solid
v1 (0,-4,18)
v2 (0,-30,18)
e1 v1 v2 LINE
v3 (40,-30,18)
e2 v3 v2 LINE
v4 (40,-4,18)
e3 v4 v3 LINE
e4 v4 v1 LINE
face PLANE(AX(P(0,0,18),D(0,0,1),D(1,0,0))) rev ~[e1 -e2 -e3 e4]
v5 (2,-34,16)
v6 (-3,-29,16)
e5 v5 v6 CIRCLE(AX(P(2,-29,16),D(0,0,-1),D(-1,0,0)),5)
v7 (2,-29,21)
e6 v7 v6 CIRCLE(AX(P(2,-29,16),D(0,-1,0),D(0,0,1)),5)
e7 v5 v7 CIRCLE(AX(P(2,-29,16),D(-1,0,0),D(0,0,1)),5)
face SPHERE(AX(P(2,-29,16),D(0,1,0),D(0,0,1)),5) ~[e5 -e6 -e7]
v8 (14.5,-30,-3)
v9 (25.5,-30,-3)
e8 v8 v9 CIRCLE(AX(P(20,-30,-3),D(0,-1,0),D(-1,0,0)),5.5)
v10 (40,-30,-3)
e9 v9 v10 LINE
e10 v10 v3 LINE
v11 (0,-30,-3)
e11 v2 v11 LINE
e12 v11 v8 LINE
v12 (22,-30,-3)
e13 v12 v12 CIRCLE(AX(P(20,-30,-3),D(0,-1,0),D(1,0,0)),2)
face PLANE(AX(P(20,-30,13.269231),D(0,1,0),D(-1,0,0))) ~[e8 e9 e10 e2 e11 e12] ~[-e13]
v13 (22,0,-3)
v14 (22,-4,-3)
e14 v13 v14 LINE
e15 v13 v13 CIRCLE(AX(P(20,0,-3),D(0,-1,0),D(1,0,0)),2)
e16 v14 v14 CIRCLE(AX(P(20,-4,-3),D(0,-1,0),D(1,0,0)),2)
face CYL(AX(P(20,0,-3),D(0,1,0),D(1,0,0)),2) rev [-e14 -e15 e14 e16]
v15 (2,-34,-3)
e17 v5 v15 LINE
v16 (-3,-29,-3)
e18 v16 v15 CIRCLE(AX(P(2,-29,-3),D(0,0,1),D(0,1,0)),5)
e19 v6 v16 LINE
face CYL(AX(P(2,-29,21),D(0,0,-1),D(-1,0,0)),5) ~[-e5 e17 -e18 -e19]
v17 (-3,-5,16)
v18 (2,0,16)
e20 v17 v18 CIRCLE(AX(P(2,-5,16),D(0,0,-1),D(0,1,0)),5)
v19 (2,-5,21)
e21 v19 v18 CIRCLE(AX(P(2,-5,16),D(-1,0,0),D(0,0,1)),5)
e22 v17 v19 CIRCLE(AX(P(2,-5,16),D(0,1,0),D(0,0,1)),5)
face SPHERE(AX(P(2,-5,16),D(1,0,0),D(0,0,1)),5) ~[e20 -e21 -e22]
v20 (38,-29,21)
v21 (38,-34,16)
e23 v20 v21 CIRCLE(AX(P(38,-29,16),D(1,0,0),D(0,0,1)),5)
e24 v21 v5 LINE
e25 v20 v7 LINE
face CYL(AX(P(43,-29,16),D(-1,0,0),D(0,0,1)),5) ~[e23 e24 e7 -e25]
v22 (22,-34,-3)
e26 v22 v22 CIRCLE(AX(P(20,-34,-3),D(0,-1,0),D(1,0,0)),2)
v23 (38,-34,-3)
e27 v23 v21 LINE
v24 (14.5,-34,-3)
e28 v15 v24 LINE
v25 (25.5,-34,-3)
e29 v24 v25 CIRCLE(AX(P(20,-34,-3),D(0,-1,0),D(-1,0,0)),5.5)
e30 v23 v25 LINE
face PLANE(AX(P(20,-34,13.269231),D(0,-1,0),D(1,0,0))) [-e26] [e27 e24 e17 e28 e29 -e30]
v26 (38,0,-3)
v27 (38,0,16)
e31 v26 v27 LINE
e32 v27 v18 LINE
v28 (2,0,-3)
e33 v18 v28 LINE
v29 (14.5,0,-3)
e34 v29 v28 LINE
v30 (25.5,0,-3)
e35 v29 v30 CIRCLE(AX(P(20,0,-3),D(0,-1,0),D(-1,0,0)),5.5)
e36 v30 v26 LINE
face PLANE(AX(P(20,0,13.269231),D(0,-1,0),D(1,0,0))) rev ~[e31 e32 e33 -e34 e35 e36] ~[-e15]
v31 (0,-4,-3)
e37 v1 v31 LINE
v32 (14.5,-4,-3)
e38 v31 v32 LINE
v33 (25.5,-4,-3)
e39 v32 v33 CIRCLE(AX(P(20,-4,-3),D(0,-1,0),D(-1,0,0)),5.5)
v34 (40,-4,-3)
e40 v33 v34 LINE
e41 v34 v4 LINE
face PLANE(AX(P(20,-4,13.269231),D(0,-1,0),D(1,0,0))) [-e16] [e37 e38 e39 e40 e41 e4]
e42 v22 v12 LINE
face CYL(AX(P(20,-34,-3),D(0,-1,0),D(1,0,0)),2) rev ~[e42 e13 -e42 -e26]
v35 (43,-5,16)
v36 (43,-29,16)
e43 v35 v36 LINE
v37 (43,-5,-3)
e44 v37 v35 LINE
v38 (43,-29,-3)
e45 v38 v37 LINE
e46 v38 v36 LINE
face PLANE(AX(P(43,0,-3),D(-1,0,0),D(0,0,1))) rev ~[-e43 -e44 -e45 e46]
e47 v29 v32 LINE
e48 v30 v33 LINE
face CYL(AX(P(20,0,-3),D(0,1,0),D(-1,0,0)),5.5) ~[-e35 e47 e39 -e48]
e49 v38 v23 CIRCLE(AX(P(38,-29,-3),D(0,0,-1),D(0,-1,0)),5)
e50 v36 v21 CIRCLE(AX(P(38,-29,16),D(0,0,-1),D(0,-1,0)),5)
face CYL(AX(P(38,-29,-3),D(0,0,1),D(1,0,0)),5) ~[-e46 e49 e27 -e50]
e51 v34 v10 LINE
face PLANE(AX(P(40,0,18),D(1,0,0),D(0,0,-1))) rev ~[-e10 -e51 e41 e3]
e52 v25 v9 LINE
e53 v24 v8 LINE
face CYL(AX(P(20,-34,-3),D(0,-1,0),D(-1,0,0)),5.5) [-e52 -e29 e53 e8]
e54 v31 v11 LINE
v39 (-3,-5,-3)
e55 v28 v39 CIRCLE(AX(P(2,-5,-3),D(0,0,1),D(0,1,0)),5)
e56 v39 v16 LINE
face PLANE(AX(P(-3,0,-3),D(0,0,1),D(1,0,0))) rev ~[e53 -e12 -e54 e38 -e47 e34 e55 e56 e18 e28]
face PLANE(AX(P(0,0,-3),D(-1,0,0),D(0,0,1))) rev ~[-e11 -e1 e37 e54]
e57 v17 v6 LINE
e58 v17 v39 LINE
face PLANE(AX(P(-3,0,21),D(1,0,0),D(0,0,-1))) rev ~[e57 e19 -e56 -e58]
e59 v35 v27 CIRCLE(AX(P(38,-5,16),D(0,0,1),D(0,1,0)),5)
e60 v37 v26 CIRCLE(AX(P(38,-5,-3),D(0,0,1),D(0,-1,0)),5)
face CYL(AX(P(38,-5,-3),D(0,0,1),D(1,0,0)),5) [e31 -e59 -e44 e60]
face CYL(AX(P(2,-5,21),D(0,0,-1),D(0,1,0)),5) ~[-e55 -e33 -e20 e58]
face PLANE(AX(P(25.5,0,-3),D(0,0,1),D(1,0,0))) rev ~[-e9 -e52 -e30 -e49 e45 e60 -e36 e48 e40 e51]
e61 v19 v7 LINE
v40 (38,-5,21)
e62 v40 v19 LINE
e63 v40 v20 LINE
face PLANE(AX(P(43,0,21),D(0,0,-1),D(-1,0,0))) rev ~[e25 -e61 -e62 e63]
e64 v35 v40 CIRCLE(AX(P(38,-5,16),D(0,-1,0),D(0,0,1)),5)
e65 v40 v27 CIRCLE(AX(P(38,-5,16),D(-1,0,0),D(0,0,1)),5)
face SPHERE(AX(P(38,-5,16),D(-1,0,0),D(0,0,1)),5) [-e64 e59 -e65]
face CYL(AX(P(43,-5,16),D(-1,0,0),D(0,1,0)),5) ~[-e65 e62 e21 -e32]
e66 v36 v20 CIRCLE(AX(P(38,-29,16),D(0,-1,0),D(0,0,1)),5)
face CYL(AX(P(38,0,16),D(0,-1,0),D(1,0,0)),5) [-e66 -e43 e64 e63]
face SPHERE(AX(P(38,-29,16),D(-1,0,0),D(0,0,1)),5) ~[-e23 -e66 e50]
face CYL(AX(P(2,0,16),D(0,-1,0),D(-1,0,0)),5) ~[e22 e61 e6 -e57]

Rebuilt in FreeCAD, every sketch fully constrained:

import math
import FreeCAD as App
import Part
import Sketcher
from FreeCAD import Vector
Q = App.Units.Quantity


def edges_at(feature, points):
    """Names of the edges that pass closest to the given points."""
    edges = feature.Shape.Edges
    near = lambda p: min(range(len(edges)), key=lambda i: edges[i].distToShape(Part.Vertex(*p))[0])
    return sorted({f"Edge{near(p) + 1}" for p in points})

doc = App.newDocument("Part")
params = doc.addObject("Spreadsheet::Sheet", "Params")
for row, (alias, value) in enumerate([
    ("sketch1_diameter", "4 mm"),
    ("sketch1_radius", "5.5 mm"),
    ("sketch1_width", "46 mm"),
    ("sketch1_height", "24 mm"),
    ("pad1_length", "4 mm"),
    ("sketch2_width", "40 mm"),
    ("sketch2_width2", "3 mm"),
    ("sketch2_height", "21 mm"),
    ("sketch2_height2", "24 mm"),
    ("pad2_length", "34 mm"),
    ("fillet_radius", "5 mm"),
], start=1):
    params.set(f"A{row}", alias)
    params.set(f"B{row}", "=" + value)
    params.setAlias(f"B{row}", alias)

body = doc.addObject("PartDesign::Body", "Body")

sketch1 = body.newObject("Sketcher::SketchObject", "Sketch")
sketch1.AttachmentSupport = (doc.getObject("XZ_Plane"), [""])
sketch1.MapMode = "FlatFace"
sketch1.addGeometry(Part.LineSegment(Vector(43, -3, 0), Vector(43, 21, 0)), False)
sketch1.addGeometry(Part.LineSegment(Vector(43, 21, 0), Vector(-3, 21, 0)), False)
sketch1.addGeometry(Part.LineSegment(Vector(-3, 21, 0), Vector(-3, -3, 0)), False)
sketch1.addGeometry(Part.LineSegment(Vector(-3, -3, 0), Vector(14.5, -3, 0)), False)
sketch1.addGeometry(Part.ArcOfCircle(Part.Circle(Vector(20, -3, 0), Vector(0, 0, 1), 5.5), math.radians(180), math.radians(360)), False)
sketch1.addGeometry(Part.LineSegment(Vector(25.5, -3, 0), Vector(43, -3, 0)), False)
sketch1.addGeometry(Part.Circle(Vector(20, -3, 0), Vector(0, 0, 1), 2), False)
sketch1.addConstraint(Sketcher.Constraint("Coincident", 0, 2, 1, 1))
sketch1.addConstraint(Sketcher.Constraint("Coincident", 1, 2, 2, 1))
sketch1.addConstraint(Sketcher.Constraint("Coincident", 2, 2, 3, 1))
sketch1.addConstraint(Sketcher.Constraint("Coincident", 3, 2, 4, 1))
sketch1.addConstraint(Sketcher.Constraint("Coincident", 4, 2, 5, 1))
sketch1.addConstraint(Sketcher.Constraint("Coincident", 5, 2, 0, 1))
sketch1.addConstraint(Sketcher.Constraint("Vertical", 0))
sketch1.addConstraint(Sketcher.Constraint("Horizontal", 1))
sketch1.addConstraint(Sketcher.Constraint("Vertical", 2))
sketch1.addConstraint(Sketcher.Constraint("Horizontal", 3))
sketch1.addConstraint(Sketcher.Constraint("Horizontal", 5))
sketch1.addConstraint(Sketcher.Constraint("Coincident", 6, 3, 4, 3))
sketch1.addConstraint(Sketcher.Constraint("Horizontal", 6, 3, 2, 2))
sketch1.addConstraint(Sketcher.Constraint("Horizontal", 3, 2, 4, 2))
sketch1.addConstraint(Sketcher.Constraint("Equal", 3, 5))
sketch1.addConstraint(Sketcher.Constraint("Diameter", 6, Q("4 mm")))
sketch1.addConstraint(Sketcher.Constraint("Radius", 4, Q("5.5 mm")))
sketch1.addConstraint(Sketcher.Constraint("DistanceX", 1, 2, 1, 1, Q("46 mm")))
sketch1.addConstraint(Sketcher.Constraint("DistanceY", 0, 1, 0, 2, Q("24 mm")))
sketch1.addConstraint(Sketcher.Constraint("DistanceX", -1, 1, 4, 3, Q("20 mm")))
sketch1.addConstraint(Sketcher.Constraint("DistanceY", 4, 3, -1, 1, Q("3 mm")))
sketch1.setExpression("Constraints[15]", "Params.sketch1_diameter")
sketch1.setExpression("Constraints[16]", "Params.sketch1_radius")
sketch1.setExpression("Constraints[17]", "Params.sketch1_width")
sketch1.setExpression("Constraints[18]", "Params.sketch1_height")
pad1 = body.newObject("PartDesign::Pad", "Pad")
pad1.Profile = sketch1
pad1.setExpression("Length", "Params.pad1_length")

sketch2 = body.newObject("Sketcher::SketchObject", "Sketch001")
sketch2.AttachmentSupport = (doc.getObject("XZ_Plane"), [""])
sketch2.MapMode = "FlatFace"
sketch2.addGeometry(Part.LineSegment(Vector(0, 18, 0), Vector(40, 18, 0)), False)
sketch2.addGeometry(Part.LineSegment(Vector(40, 18, 0), Vector(40, -3, 0)), False)
sketch2.addGeometry(Part.LineSegment(Vector(40, -3, 0), Vector(43, -3, 0)), False)
sketch2.addGeometry(Part.LineSegment(Vector(43, -3, 0), Vector(43, 21, 0)), False)
sketch2.addGeometry(Part.LineSegment(Vector(43, 21, 0), Vector(-3, 21, 0)), False)
sketch2.addGeometry(Part.LineSegment(Vector(-3, 21, 0), Vector(-3, -3, 0)), False)
sketch2.addGeometry(Part.LineSegment(Vector(-3, -3, 0), Vector(0, -3, 0)), False)
sketch2.addGeometry(Part.LineSegment(Vector(0, -3, 0), Vector(0, 18, 0)), False)
sketch2.addConstraint(Sketcher.Constraint("Coincident", 0, 2, 1, 1))
sketch2.addConstraint(Sketcher.Constraint("Coincident", 1, 2, 2, 1))
sketch2.addConstraint(Sketcher.Constraint("Coincident", 2, 2, 3, 1))
sketch2.addConstraint(Sketcher.Constraint("Coincident", 3, 2, 4, 1))
sketch2.addConstraint(Sketcher.Constraint("Coincident", 4, 2, 5, 1))
sketch2.addConstraint(Sketcher.Constraint("Coincident", 5, 2, 6, 1))
sketch2.addConstraint(Sketcher.Constraint("Coincident", 6, 2, 7, 1))
sketch2.addConstraint(Sketcher.Constraint("Coincident", 7, 2, 0, 1))
sketch2.addConstraint(Sketcher.Constraint("Horizontal", 0))
sketch2.addConstraint(Sketcher.Constraint("Vertical", 1))
sketch2.addConstraint(Sketcher.Constraint("Horizontal", 2))
sketch2.addConstraint(Sketcher.Constraint("Vertical", 3))
sketch2.addConstraint(Sketcher.Constraint("Horizontal", 4))
sketch2.addConstraint(Sketcher.Constraint("Vertical", 5))
sketch2.addConstraint(Sketcher.Constraint("Horizontal", 6))
sketch2.addConstraint(Sketcher.Constraint("Vertical", 7))
sketch2.addConstraint(Sketcher.Constraint("PointOnObject", 6, 2, -2))
sketch2.addConstraint(Sketcher.Constraint("Horizontal", 2, 2, 5, 2))
sketch2.addConstraint(Sketcher.Constraint("Equal", 2, 6))
sketch2.addConstraint(Sketcher.Constraint("DistanceX", 0, 1, 0, 2, Q("40 mm")))
sketch2.addConstraint(Sketcher.Constraint("DistanceX", 2, 1, 2, 2, Q("3 mm")))
sketch2.addConstraint(Sketcher.Constraint("DistanceY", 1, 2, 1, 1, Q("21 mm")))
sketch2.addConstraint(Sketcher.Constraint("DistanceY", 3, 1, 3, 2, Q("24 mm")))
sketch2.addConstraint(Sketcher.Constraint("DistanceY", -1, 1, 0, 2, Q("18 mm")))
sketch2.setExpression("Constraints[19]", "Params.sketch2_width")
sketch2.setExpression("Constraints[20]", "Params.sketch2_width2")
sketch2.setExpression("Constraints[21]", "Params.sketch2_height")
sketch2.setExpression("Constraints[22]", "Params.sketch2_height2")
pad2 = body.newObject("PartDesign::Pad", "Pad001")
pad2.Profile = sketch2
pad2.setExpression("Length", "Params.pad2_length")
body2 = doc.addObject("PartDesign::Body", "Body001")
doc.recompute()

body2.BaseFeature = body
doc.recompute()

mirroring = doc.addObject("Part::Mirroring", "Mirroring")
mirroring.Source = body
mirroring.Base = Vector(0, -17, 0)
mirroring.Normal = Vector(0, -1, 0)
body3 = doc.addObject("PartDesign::Body", "Body002")
body3.BaseFeature = mirroring
boolean = body2.newObject("PartDesign::Boolean", "Boolean")
boolean.Type = "Fuse"
boolean.addObjects([body3])
doc.recompute()

fillet = body2.newObject("PartDesign::Fillet", "Fillet")
fillet.Base = (boolean, edges_at(boolean, [
    (20, 0, 21),
    (-3, -17, 21),
    (20, -34, 21),
    (43, -17, 21),
    (43, 0, 9),
    (-3, 0, 9),
    (-3, -34, 9),
    (43, -34, 9),
]))
fillet.setExpression("Radius", "Params.fillet_radius")
mirroring.Visibility = False

doc.recompute()
